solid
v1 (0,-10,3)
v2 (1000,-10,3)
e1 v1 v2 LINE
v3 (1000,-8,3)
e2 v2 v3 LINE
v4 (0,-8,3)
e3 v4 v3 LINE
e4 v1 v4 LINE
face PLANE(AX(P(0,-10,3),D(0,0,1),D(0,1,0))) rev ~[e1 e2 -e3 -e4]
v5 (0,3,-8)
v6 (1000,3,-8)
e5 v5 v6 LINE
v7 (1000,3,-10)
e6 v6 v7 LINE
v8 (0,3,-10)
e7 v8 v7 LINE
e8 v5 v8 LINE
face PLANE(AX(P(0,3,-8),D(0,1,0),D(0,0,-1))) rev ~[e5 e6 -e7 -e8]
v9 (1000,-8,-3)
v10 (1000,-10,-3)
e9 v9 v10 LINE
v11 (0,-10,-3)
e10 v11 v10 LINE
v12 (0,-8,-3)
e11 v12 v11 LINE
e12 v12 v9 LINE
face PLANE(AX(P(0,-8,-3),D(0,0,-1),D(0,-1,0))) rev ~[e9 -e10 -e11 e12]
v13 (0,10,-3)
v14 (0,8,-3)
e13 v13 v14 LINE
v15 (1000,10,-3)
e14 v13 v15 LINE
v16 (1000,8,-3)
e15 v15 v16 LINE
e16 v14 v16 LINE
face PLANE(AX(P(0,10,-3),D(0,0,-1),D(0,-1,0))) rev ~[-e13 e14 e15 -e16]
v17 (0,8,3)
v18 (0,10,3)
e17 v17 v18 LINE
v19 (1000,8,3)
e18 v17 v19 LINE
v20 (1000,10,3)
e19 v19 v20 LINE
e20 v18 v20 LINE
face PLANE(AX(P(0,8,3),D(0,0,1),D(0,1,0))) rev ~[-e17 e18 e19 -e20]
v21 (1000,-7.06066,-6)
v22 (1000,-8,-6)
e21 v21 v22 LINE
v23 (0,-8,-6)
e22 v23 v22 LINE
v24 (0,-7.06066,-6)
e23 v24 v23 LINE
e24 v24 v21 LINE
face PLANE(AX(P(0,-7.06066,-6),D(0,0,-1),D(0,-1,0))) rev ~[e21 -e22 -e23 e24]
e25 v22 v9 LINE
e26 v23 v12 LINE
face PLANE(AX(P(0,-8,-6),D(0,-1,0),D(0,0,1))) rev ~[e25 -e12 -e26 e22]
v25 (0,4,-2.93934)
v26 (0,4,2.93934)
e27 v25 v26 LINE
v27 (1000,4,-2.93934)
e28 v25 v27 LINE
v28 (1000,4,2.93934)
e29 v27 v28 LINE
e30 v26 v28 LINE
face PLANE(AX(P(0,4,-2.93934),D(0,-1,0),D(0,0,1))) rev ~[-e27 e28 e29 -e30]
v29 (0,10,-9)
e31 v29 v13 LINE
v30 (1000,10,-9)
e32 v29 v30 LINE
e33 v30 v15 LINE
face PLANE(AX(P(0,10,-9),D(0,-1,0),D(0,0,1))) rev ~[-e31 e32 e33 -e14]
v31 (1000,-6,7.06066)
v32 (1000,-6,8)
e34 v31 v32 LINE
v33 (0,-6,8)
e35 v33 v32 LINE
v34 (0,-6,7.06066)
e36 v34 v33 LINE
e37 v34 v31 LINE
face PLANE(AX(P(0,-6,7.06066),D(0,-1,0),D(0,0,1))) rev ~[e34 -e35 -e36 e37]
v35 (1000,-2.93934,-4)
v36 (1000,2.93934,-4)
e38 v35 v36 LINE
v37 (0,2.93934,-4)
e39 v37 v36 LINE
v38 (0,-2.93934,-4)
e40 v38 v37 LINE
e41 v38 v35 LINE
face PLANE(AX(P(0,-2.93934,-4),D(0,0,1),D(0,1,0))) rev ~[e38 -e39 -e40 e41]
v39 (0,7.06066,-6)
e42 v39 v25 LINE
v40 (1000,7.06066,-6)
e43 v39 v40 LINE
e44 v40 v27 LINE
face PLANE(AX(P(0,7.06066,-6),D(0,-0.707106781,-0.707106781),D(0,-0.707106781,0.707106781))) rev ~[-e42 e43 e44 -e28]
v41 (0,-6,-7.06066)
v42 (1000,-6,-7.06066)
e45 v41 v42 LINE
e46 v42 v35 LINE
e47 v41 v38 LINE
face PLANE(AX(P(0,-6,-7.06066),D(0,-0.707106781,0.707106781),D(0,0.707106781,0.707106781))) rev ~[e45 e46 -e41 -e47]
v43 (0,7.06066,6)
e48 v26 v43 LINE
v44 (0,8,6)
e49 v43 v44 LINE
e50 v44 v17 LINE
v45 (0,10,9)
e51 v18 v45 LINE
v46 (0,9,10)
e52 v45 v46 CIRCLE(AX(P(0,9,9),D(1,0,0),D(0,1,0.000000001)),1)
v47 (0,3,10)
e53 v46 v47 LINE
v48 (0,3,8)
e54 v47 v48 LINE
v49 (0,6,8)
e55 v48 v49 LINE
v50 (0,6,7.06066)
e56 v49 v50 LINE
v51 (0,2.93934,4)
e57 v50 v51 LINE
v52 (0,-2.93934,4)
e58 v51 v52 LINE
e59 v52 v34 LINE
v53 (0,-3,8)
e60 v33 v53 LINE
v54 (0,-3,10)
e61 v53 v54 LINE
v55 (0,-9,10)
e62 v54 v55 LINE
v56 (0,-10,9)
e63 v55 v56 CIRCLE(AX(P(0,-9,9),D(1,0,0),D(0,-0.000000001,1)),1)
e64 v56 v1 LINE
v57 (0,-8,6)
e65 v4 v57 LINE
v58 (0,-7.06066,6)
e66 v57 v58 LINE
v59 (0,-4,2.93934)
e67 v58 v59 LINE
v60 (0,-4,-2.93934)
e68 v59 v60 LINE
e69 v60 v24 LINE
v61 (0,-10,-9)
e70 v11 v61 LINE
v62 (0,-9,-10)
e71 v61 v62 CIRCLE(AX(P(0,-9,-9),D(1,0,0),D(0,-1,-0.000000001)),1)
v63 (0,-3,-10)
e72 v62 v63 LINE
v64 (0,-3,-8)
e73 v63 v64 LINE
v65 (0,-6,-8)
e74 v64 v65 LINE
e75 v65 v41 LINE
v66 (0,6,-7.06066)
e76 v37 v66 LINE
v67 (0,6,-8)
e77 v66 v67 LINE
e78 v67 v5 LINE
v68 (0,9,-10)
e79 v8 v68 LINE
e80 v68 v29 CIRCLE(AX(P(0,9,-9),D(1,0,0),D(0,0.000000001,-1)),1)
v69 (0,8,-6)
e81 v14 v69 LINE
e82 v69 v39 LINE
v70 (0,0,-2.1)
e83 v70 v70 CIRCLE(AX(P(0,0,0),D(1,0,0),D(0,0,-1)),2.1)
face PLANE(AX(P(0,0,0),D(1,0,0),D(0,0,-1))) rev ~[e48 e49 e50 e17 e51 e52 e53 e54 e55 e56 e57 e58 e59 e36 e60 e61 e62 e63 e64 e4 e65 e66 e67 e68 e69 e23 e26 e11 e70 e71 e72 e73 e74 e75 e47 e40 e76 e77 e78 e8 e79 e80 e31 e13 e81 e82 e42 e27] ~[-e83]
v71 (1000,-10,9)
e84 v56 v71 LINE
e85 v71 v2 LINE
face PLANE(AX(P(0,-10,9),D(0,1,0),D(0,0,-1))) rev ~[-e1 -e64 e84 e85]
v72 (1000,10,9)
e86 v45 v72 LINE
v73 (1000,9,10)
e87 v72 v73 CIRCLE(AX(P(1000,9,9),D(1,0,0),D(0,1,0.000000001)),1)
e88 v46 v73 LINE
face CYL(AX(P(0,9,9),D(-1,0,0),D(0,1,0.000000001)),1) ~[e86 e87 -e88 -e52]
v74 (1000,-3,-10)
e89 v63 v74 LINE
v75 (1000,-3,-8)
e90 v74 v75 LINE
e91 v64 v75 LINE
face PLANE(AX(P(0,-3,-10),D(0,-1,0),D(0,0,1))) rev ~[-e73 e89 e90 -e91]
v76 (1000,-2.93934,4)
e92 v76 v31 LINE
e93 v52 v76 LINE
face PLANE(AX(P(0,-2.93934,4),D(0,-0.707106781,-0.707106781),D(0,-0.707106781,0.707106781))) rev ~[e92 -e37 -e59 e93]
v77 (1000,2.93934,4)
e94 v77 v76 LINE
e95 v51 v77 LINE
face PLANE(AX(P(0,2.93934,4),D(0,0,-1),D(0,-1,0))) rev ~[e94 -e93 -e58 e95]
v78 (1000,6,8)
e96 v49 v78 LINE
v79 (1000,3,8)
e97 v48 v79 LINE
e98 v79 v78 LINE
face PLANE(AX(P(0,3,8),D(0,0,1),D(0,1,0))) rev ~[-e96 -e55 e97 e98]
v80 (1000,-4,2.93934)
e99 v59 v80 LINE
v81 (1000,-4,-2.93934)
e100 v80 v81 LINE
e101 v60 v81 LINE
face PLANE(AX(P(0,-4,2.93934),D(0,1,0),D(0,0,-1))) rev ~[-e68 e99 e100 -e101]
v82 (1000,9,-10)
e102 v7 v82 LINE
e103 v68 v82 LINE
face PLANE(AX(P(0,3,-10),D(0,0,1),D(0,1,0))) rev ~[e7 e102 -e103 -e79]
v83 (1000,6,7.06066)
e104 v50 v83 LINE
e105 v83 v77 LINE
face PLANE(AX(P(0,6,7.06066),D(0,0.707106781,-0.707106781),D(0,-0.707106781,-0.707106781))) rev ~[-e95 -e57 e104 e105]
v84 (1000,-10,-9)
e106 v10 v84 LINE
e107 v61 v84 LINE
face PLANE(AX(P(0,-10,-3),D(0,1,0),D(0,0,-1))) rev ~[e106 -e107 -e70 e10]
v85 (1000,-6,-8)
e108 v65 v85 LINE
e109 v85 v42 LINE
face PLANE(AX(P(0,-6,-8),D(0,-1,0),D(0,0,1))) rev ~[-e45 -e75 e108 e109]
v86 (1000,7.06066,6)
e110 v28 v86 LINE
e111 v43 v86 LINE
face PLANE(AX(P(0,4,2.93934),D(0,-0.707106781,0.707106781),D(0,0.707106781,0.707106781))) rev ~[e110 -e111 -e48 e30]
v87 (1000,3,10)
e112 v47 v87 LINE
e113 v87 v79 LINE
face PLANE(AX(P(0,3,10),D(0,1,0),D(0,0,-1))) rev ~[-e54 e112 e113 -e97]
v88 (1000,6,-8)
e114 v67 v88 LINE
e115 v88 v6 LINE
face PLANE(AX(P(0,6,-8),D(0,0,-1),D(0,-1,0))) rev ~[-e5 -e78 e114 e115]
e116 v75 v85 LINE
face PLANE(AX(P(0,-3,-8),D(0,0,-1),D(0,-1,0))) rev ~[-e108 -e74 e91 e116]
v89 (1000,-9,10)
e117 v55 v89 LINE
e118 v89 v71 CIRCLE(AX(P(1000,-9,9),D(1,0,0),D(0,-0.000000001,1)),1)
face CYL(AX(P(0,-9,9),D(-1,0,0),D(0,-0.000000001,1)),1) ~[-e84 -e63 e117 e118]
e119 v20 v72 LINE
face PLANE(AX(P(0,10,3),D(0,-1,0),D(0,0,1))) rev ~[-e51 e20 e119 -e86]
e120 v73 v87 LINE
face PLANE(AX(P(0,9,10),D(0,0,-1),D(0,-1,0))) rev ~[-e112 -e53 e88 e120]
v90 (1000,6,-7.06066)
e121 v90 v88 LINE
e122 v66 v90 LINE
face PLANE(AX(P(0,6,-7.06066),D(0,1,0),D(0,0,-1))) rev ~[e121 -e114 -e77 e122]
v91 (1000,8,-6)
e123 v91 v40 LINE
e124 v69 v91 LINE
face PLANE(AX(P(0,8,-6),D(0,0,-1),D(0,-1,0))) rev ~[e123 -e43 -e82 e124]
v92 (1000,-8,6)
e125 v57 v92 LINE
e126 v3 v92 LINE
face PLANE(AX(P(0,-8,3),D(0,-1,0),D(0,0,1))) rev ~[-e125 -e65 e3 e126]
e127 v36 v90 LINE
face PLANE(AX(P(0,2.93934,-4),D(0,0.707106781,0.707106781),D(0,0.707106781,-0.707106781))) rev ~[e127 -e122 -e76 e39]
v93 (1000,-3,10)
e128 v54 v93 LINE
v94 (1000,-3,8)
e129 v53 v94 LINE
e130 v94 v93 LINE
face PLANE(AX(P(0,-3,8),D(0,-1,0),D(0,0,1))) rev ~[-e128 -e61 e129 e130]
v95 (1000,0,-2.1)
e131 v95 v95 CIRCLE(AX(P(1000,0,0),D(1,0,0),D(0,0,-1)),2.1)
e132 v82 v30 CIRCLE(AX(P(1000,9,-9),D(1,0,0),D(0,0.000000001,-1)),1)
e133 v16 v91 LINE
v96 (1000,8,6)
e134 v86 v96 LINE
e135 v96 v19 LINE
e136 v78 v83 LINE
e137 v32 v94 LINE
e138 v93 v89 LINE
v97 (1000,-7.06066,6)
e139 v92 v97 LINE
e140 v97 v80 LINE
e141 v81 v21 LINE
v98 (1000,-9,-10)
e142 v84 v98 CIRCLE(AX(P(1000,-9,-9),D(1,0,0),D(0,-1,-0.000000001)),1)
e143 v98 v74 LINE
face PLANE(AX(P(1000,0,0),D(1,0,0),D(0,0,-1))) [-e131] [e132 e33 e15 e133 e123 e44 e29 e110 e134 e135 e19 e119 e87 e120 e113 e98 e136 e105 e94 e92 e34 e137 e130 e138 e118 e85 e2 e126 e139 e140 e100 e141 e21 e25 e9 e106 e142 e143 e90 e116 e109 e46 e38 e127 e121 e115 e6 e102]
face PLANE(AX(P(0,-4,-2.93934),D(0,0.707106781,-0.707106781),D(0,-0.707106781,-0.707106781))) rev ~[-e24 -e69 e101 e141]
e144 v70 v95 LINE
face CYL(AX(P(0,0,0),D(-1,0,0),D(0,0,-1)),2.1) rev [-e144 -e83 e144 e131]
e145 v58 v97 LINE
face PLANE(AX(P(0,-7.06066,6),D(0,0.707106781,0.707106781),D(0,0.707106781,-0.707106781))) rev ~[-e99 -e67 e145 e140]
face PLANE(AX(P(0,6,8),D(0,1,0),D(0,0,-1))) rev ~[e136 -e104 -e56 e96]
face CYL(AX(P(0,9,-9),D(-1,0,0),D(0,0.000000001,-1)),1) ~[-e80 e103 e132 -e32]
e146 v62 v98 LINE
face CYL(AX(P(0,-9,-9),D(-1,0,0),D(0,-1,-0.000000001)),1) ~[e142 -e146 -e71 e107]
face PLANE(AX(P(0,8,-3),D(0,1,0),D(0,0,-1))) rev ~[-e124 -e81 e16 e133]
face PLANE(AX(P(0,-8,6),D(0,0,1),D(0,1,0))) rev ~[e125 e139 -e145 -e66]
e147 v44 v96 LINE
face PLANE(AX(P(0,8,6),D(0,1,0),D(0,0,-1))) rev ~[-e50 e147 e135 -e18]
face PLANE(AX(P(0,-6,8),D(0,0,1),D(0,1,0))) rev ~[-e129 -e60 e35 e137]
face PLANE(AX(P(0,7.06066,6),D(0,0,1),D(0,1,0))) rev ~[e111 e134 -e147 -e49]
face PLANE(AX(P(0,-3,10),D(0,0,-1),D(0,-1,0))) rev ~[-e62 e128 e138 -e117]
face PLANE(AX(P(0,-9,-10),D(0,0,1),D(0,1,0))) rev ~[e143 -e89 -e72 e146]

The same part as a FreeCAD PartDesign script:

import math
import FreeCAD as App
import Part
import Sketcher

V = App.Vector
Q = App.Units.Quantity

doc = App.newDocument("Part")
body = doc.addObject("PartDesign::Body", "Body")

# Sketch on YZ plane
sketch1 = body.newObject("Sketcher::SketchObject", "Sketch")
sketch1.AttachmentSupport = (doc.getObject("YZ_Plane"), [""])
sketch1.MapMode = "FlatFace"
sketch1.addGeometry([
    Part.LineSegment(V(9, 10, 0), V(3, 10, 0)),  # 0
    Part.LineSegment(V(3, 10, 0), V(3, 8, 0)),  # 1
    Part.LineSegment(V(3, 8, 0), V(6, 8, 0)),  # 2
    Part.LineSegment(V(6, 8, 0), V(6, 7.06066, 0)),  # 3
    Part.LineSegment(V(6, 7.06066, 0), V(2.93934, 4, 0)),  # 4
    Part.LineSegment(V(2.93934, 4, 0), V(-2.93934, 4, 0)),  # 5
    Part.LineSegment(V(-2.93934, 4, 0), V(-6, 7.06066, 0)),  # 6
    Part.LineSegment(V(-6, 7.06066, 0), V(-6, 8, 0)),  # 7
    Part.LineSegment(V(-6, 8, 0), V(-3, 8, 0)),  # 8
    Part.LineSegment(V(-3, 8, 0), V(-3, 10, 0)),  # 9
    Part.LineSegment(V(-3, 10, 0), V(-9, 10, 0)),  # 10
    Part.ArcOfCircle(Part.Circle(V(-9, 9, 0), V(0, 0, 1), 1), math.radians(90), math.radians(180)),  # 11
    Part.LineSegment(V(-10, 9, 0), V(-10, 3, 0)),  # 12
    Part.LineSegment(V(-10, 3, 0), V(-8, 3, 0)),  # 13
    Part.LineSegment(V(-8, 3, 0), V(-8, 6, 0)),  # 14
    Part.LineSegment(V(-8, 6, 0), V(-7.06066, 6, 0)),  # 15
    Part.LineSegment(V(-7.06066, 6, 0), V(-4, 2.93934, 0)),  # 16
    Part.LineSegment(V(-4, 2.93934, 0), V(-4, -2.93934, 0)),  # 17
    Part.LineSegment(V(-4, -2.93934, 0), V(-7.06066, -6, 0)),  # 18
    Part.LineSegment(V(-7.06066, -6, 0), V(-8, -6, 0)),  # 19
    Part.LineSegment(V(-8, -6, 0), V(-8, -3, 0)),  # 20
    Part.LineSegment(V(-8, -3, 0), V(-10, -3, 0)),  # 21
    Part.LineSegment(V(-10, -3, 0), V(-10, -9, 0)),  # 22
    Part.ArcOfCircle(Part.Circle(V(-9, -9, 0), V(0, 0, 1), 1), math.radians(-180), math.radians(-90)),  # 23
    Part.LineSegment(V(-9, -10, 0), V(-3, -10, 0)),  # 24
    Part.LineSegment(V(-3, -10, 0), V(-3, -8, 0)),  # 25
    Part.LineSegment(V(-3, -8, 0), V(-6, -8, 0)),  # 26
    Part.LineSegment(V(-6, -8, 0), V(-6, -7.06066, 0)),  # 27
    Part.LineSegment(V(-6, -7.06066, 0), V(-2.93934, -4, 0)),  # 28
    Part.LineSegment(V(-2.93934, -4, 0), V(2.93934, -4, 0)),  # 29
    Part.LineSegment(V(2.93934, -4, 0), V(6, -7.06066, 0)),  # 30
    Part.LineSegment(V(6, -7.06066, 0), V(6, -8, 0)),  # 31
    Part.LineSegment(V(6, -8, 0), V(3, -8, 0)),  # 32
    Part.LineSegment(V(3, -8, 0), V(3, -10, 0)),  # 33
    Part.LineSegment(V(3, -10, 0), V(9, -10, 0)),  # 34
    Part.ArcOfCircle(Part.Circle(V(9, -9, 0), V(0, 0, 1), 1), math.radians(-90), math.radians(0)),  # 35
    Part.LineSegment(V(10, -9, 0), V(10, -3, 0)),  # 36
    Part.LineSegment(V(10, -3, 0), V(8, -3, 0)),  # 37
    Part.LineSegment(V(8, -3, 0), V(8, -6, 0)),  # 38
    Part.LineSegment(V(8, -6, 0), V(7.06066, -6, 0)),  # 39
    Part.LineSegment(V(7.06066, -6, 0), V(4, -2.93934, 0)),  # 40
    Part.LineSegment(V(4, -2.93934, 0), V(4, 2.93934, 0)),  # 41
    Part.LineSegment(V(4, 2.93934, 0), V(7.06066, 6, 0)),  # 42
    Part.LineSegment(V(7.06066, 6, 0), V(8, 6, 0)),  # 43
    Part.LineSegment(V(8, 6, 0), V(8, 3, 0)),  # 44
    Part.LineSegment(V(8, 3, 0), V(10, 3, 0)),  # 45
    Part.LineSegment(V(10, 3, 0), V(10, 9, 0)),  # 46
    Part.ArcOfCircle(Part.Circle(V(9, 9, 0), V(0, 0, 1), 1), math.radians(0), math.radians(90)),  # 47
    Part.Circle(V(0, 0, 0), V(0, 0, 1), 2.1),  # 48
], False)
sketch1.addConstraint([
    Sketcher.Constraint("Coincident", 0, 2, 1, 1),
    Sketcher.Constraint("Coincident", 1, 2, 2, 1),
    Sketcher.Constraint("Coincident", 2, 2, 3, 1),
    Sketcher.Constraint("Coincident", 3, 2, 4, 1),
    Sketcher.Constraint("Coincident", 4, 2, 5, 1),
    Sketcher.Constraint("Coincident", 5, 2, 6, 1),
    Sketcher.Constraint("Coincident", 6, 2, 7, 1),
    Sketcher.Constraint("Coincident", 7, 2, 8, 1),
    Sketcher.Constraint("Coincident", 8, 2, 9, 1),
    Sketcher.Constraint("Coincident", 9, 2, 10, 1),
    Sketcher.Constraint("Tangent", 10, 2, 11, 1),
    Sketcher.Constraint("Tangent", 11, 2, 12, 1),
    Sketcher.Constraint("Coincident", 12, 2, 13, 1),
    Sketcher.Constraint("Coincident", 13, 2, 14, 1),
    Sketcher.Constraint("Coincident", 14, 2, 15, 1),
    Sketcher.Constraint("Coincident", 15, 2, 16, 1),
    Sketcher.Constraint("Coincident", 16, 2, 17, 1),
    Sketcher.Constraint("Coincident", 17, 2, 18, 1),
    Sketcher.Constraint("Coincident", 18, 2, 19, 1),
    Sketcher.Constraint("Coincident", 19, 2, 20, 1),
    Sketcher.Constraint("Coincident", 20, 2, 21, 1),
    Sketcher.Constraint("Coincident", 21, 2, 22, 1),
    Sketcher.Constraint("Tangent", 22, 2, 23, 1),
    Sketcher.Constraint("Tangent", 23, 2, 24, 1),
    Sketcher.Constraint("Coincident", 24, 2, 25, 1),
    Sketcher.Constraint("Coincident", 25, 2, 26, 1),
    Sketcher.Constraint("Coincident", 26, 2, 27, 1),
    Sketcher.Constraint("Coincident", 27, 2, 28, 1),
    Sketcher.Constraint("Coincident", 28, 2, 29, 1),
    Sketcher.Constraint("Coincident", 29, 2, 30, 1),
    Sketcher.Constraint("Coincident", 30, 2, 31, 1),
    Sketcher.Constraint("Coincident", 31, 2, 32, 1),
    Sketcher.Constraint("Coincident", 32, 2, 33, 1),
    Sketcher.Constraint("Coincident", 33, 2, 34, 1),
    Sketcher.Constraint("Tangent", 34, 2, 35, 1),
    Sketcher.Constraint("Tangent", 35, 2, 36, 1),
    Sketcher.Constraint("Coincident", 36, 2, 37, 1),
    Sketcher.Constraint("Coincident", 37, 2, 38, 1),
    Sketcher.Constraint("Coincident", 38, 2, 39, 1),
    Sketcher.Constraint("Coincident", 39, 2, 40, 1),
    Sketcher.Constraint("Coincident", 40, 2, 41, 1),
    Sketcher.Constraint("Coincident", 41, 2, 42, 1),
    Sketcher.Constraint("Coincident", 42, 2, 43, 1),
    Sketcher.Constraint("Coincident", 43, 2, 44, 1),
    Sketcher.Constraint("Coincident", 44, 2, 45, 1),
    Sketcher.Constraint("Coincident", 45, 2, 46, 1),
    Sketcher.Constraint("Tangent", 46, 2, 47, 1),
    Sketcher.Constraint("Tangent", 47, 2, 0, 1),
    Sketcher.Constraint("Horizontal", 0),
    Sketcher.Constraint("Vertical", 1),
    Sketcher.Constraint("Horizontal", 2),
    Sketcher.Constraint("Vertical", 3),
    Sketcher.Constraint("Horizontal", 5),
    Sketcher.Constraint("Vertical", 7),
    Sketcher.Constraint("Horizontal", 8),
    Sketcher.Constraint("Vertical", 9),
    Sketcher.Constraint("Horizontal", 10),
    Sketcher.Constraint("Vertical", 12),
    Sketcher.Constraint("Horizontal", 13),
    Sketcher.Constraint("Vertical", 14),
    Sketcher.Constraint("Horizontal", 15),
    Sketcher.Constraint("Vertical", 17),
    Sketcher.Constraint("Horizontal", 19),
    Sketcher.Constraint("Vertical", 20),
    Sketcher.Constraint("Horizontal", 21),
    Sketcher.Constraint("Vertical", 22),
    Sketcher.Constraint("Horizontal", 24),
    Sketcher.Constraint("Vertical", 25),
    Sketcher.Constraint("Horizontal", 26),
    Sketcher.Constraint("Vertical", 27),
    Sketcher.Constraint("Horizontal", 29),
    Sketcher.Constraint("Vertical", 31),
    Sketcher.Constraint("Horizontal", 32),
    Sketcher.Constraint("Vertical", 33),
    Sketcher.Constraint("Horizontal", 34),
    Sketcher.Constraint("Vertical", 36),
    Sketcher.Constraint("Horizontal", 37),
    Sketcher.Constraint("Vertical", 38),
    Sketcher.Constraint("Horizontal", 39),
    Sketcher.Constraint("Vertical", 41),
    Sketcher.Constraint("Horizontal", 43),
    Sketcher.Constraint("Vertical", 44),
    Sketcher.Constraint("Horizontal", 45),
    Sketcher.Constraint("Vertical", 46),
    Sketcher.Constraint("Coincident", 48, 3, -1, 1),
    Sketcher.Constraint("Equal", 11, 23),
    Sketcher.Constraint("Equal", 23, 35),
    Sketcher.Constraint("Equal", 35, 47),
    Sketcher.Constraint("Symmetric", 11, 3, 35, 3, -1, 1),
    Sketcher.Constraint("Symmetric", 23, 3, 47, 3, -1, 1),
    Sketcher.Constraint("Symmetric", 1, 2, 25, 2, -1, 1),
    Sketcher.Constraint("Symmetric", 3, 2, 27, 2, -1, 1),
    Sketcher.Constraint("Symmetric", 4, 2, 28, 2, -1, 1),
    Sketcher.Constraint("Symmetric", 6, 2, 30, 2, -1, 1),
    Sketcher.Constraint("Symmetric", 8, 2, 32, 2, -1, 1),
    Sketcher.Constraint("Symmetric", 13, 2, 37, 2, -1, 1),
    Sketcher.Constraint("Symmetric", 15, 2, 39, 2, -1, 1),
    Sketcher.Constraint("Symmetric", 16, 2, 40, 2, -1, 1),
    Sketcher.Constraint("Symmetric", 18, 2, 42, 2, -1, 1),
    Sketcher.Constraint("Symmetric", 20, 2, 44, 2, -1, 1),
    Sketcher.Constraint("Symmetric", 23, 3, 35, 3, -2),
    Sketcher.Constraint("Symmetric", 3, 2, 6, 2, -2),
    Sketcher.Constraint("Symmetric", 1, 2, 8, 2, -2),
    Sketcher.Constraint("Symmetric", 20, 2, 37, 2, -2),
    Sketcher.Constraint("Symmetric", 18, 2, 39, 2, -2),
    Sketcher.Constraint("Perpendicular", 4, 6),
    Sketcher.Constraint("Parallel", 6, 16),
    Sketcher.Constraint("Perpendicular", 16, 18),
    Sketcher.Constraint("Perpendicular", 28, 30),
    Sketcher.Constraint("Perpendicular", 40, 42),
    Sketcher.Constraint("Horizontal", 17, 2, 40, 2),
    Sketcher.Constraint("Equal", 45, 1),
    Sketcher.Constraint("Equal", 43, 3),
    Sketcher.Constraint("Equal", 34, 12),
    Sketcher.Constraint("Equal", 32, 14),
    Sketcher.Constraint("Equal", 29, 17),
    Sketcher.Constraint("Equal", 6, 16),
    Sketcher.Constraint("Radius", 11, Q("1 mm")),
    Sketcher.Constraint("Diameter", 48, Q("4.2 mm")),
    Sketcher.Constraint("DistanceX", 0, 2, 0, 1, Q("6 mm")),
    Sketcher.Constraint("DistanceX", 2, 1, 2, 2, Q("3 mm")),
    Sketcher.Constraint("DistanceX", 13, 1, 13, 2, Q("2 mm")),
    Sketcher.Constraint("DistanceX", 11, 3, -1, 1, Q("9 mm")),
    Sketcher.Constraint("DistanceY", -1, 1, 4, 2, Q("4 mm")),
    Sketcher.Constraint("DistanceX", 5, 2, 5, 1, Q("5.87868 mm")),
])
pad1 = body.newObject("PartDesign::Pad", "Pad")
pad1.Profile = sketch1
pad1.Length = 1000

doc.recompute()
